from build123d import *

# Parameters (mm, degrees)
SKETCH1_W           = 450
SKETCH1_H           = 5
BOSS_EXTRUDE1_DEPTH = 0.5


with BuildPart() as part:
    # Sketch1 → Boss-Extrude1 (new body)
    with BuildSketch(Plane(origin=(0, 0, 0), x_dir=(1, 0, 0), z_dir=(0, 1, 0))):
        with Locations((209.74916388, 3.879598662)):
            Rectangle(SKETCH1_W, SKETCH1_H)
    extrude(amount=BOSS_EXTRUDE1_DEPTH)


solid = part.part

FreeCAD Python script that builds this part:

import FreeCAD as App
import Part
import Sketcher

V = App.Vector
Q = App.Units.Quantity


def add_polygon(sketch, points):
    """Adds a closed chain of lines whose ends are joined by coincident constraints."""
    first, n = sketch.GeometryCount, len(points)
    for a, b in zip(points, points[1:] + points[:1]):
        sketch.addGeometry(Part.LineSegment(App.Vector(*a, 0), App.Vector(*b, 0)), False)
    for i in range(n):
        sketch.addConstraint(Sketcher.Constraint("Coincident", first + i, 2, first + (i + 1) % n, 1))

doc = App.newDocument("Part")
body = doc.addObject("PartDesign::Body", "Body")

# Sketch on XZ plane
sketch1 = body.newObject("Sketcher::SketchObject", "Sketch")
sketch1.AttachmentSupport = (doc.getObject("XZ_Plane"), [""])
sketch1.MapMode = "FlatFace"
add_polygon(sketch1, [(-15, -6), (-15, -1), (435, -1), (435, -6)])  # lines 0-3
sketch1.addConstraint(Sketcher.Constraint("Vertical", 0))
sketch1.addConstraint(Sketcher.Constraint("Horizontal", 1))
sketch1.addConstraint(Sketcher.Constraint("Vertical", 2))
sketch1.addConstraint(Sketcher.Constraint("Horizontal", 3))
sketch1.addConstraint(Sketcher.Constraint("DistanceX", 1, 1, 1, 2, Q("450 mm")))
sketch1.addConstraint(Sketcher.Constraint("DistanceY", 0, 1, 0, 2, Q("5 mm")))
sketch1.addConstraint(Sketcher.Constraint("DistanceY", 0, 2, -1, 1, Q("1.379599 mm")))
sketch1.addConstraint(Sketcher.Constraint("DistanceX", 0, 2, -1, 1, Q("15.250836 mm")))
pad1 = body.newObject("PartDesign::Pad", "Pad")
pad1.Profile = sketch1
pad1.Length = 0.5
pad1.Reversed = True

doc.recompute()
